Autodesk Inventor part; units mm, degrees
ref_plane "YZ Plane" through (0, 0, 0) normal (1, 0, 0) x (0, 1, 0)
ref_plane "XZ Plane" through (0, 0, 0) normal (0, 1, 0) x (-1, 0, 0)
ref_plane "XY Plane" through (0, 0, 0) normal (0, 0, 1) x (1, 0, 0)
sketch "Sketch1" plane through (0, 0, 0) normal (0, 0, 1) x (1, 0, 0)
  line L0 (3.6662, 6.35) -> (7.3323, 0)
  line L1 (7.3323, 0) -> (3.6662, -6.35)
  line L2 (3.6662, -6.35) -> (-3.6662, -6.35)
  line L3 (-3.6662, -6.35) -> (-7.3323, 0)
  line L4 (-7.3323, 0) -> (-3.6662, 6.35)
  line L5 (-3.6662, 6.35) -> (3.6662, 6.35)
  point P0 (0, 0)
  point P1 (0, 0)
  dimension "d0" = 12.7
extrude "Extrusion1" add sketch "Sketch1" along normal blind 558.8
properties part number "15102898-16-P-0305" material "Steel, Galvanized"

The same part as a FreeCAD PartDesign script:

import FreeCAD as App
import Part
import Sketcher

V = App.Vector
Q = App.Units.Quantity

doc = App.newDocument("Part")
params = doc.addObject("Spreadsheet::Sheet", "Params")
for row, (alias, value) in enumerate([
    ("pad1_length", "22 in"),
], start=1):
    params.set(f"A{row}", alias)
    params.set(f"B{row}", "=" + value)
    params.setAlias(f"B{row}", alias)

body = doc.addObject("PartDesign::Body", "Body")

sketch1 = body.newObject("Sketcher::SketchObject", "Sketch")
sketch1.AttachmentSupport = (doc.getObject("XY_Plane"), [""])
sketch1.MapMode = "FlatFace"
sketch1.addGeometry(Part.LineSegment(V(7, 0, 0), V(4, 6, 0)), False)
sketch1.addGeometry(Part.LineSegment(V(4, 6, 0), V(-4, 6, 0)), False)
sketch1.addGeometry(Part.LineSegment(V(-4, 6, 0), V(-7, 0, 0)), False)
sketch1.addGeometry(Part.LineSegment(V(-7, 0, 0), V(-4, -6, 0)), False)
sketch1.addGeometry(Part.LineSegment(V(-4, -6, 0), V(4, -6, 0)), False)
sketch1.addGeometry(Part.LineSegment(V(4, -6, 0), V(7, 0, 0)), False)
sketch1.addConstraint(Sketcher.Constraint("Coincident", 0, 2, 1, 1))
sketch1.addConstraint(Sketcher.Constraint("Coincident", 1, 2, 2, 1))
sketch1.addConstraint(Sketcher.Constraint("Coincident", 2, 2, 3, 1))
sketch1.addConstraint(Sketcher.Constraint("Coincident", 3, 2, 4, 1))
sketch1.addConstraint(Sketcher.Constraint("Coincident", 4, 2, 5, 1))
sketch1.addConstraint(Sketcher.Constraint("Coincident", 5, 2, 0, 1))
sketch1.addConstraint(Sketcher.Constraint("Horizontal", 1))
sketch1.addConstraint(Sketcher.Constraint("Horizontal", 4))
sketch1.addConstraint(Sketcher.Constraint("Symmetric", 0, 2, 3, 2, -1, 1))
sketch1.addConstraint(Sketcher.Constraint("Symmetric", 2, 2, 5, 2, -1, 1))
sketch1.addConstraint(Sketcher.Constraint("PointOnObject", 2, 2, -1))
sketch1.addConstraint(Sketcher.Constraint("Parallel", 2, 5))
sketch1.addConstraint(Sketcher.Constraint("Vertical", 1, 2, 3, 2))
sketch1.addConstraint(Sketcher.Constraint("DistanceY", 3, 2, 1, 2, Q("0.5 in")))
sketch1.addConstraint(Sketcher.Constraint("Angle", 0, Q("119.9995 deg")))
sketch1.addConstraint(Sketcher.Constraint("DistanceX", 2, 2, 0, 2, Q("0.433 in")))
pad1 = body.newObject("PartDesign::Pad", "Pad")
pad1.Profile = sketch1
pad1.setExpression("Length", "Params.pad1_length")

doc.recompute()
